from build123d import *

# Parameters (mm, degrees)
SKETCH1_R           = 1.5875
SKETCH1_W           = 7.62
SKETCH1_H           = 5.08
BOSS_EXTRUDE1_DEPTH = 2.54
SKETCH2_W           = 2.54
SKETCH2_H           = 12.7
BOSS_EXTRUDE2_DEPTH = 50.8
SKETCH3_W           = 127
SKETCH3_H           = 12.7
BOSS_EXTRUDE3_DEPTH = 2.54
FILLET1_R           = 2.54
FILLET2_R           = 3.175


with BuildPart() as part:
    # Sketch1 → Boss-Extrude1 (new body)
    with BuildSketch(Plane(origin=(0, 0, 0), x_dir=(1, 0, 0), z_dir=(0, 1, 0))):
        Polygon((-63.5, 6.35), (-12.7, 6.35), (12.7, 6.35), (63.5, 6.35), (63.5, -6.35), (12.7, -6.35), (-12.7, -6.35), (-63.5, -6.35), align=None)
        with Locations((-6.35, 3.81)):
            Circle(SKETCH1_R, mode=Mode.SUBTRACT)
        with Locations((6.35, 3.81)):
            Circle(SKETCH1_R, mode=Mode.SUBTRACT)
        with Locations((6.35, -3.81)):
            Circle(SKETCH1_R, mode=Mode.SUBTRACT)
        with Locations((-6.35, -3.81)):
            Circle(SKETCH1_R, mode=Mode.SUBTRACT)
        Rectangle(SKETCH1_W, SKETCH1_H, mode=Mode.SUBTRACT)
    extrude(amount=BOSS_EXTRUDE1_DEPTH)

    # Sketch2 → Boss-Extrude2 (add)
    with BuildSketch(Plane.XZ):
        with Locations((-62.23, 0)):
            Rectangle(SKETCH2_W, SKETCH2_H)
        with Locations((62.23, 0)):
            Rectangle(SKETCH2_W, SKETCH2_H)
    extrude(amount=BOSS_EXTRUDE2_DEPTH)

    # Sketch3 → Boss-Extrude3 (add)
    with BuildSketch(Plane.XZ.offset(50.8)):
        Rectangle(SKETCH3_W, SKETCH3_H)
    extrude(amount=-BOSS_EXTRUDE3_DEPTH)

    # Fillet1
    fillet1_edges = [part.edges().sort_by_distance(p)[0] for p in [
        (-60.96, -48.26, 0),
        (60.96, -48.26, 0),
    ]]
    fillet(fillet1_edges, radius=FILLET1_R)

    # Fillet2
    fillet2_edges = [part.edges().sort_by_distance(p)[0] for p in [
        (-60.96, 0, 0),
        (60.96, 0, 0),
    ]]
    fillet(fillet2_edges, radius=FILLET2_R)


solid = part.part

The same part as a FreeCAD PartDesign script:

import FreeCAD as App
import Part
import Sketcher
from FreeCAD import Vector
Q = App.Units.Quantity


def edges_at(feature, points):
    """Names of the edges that pass closest to the given points."""
    edges = feature.Shape.Edges
    near = lambda p: min(range(len(edges)), key=lambda i: edges[i].distToShape(Part.Vertex(*p))[0])
    return sorted({f"Edge{near(p) + 1}" for p in points})

doc = App.newDocument("Part")
params = doc.addObject("Spreadsheet::Sheet", "Params")
for row, (alias, value) in enumerate([
    ("sketch1_width", "5 in"),
    ("sketch1_diameter", "0.125 in"),
    ("sketch1_width2", "0.3 in"),
    ("sketch1_height", "0.5 in"),
    ("sketch1_height2", "0.2 in"),
    ("pad1_length", "0.1 in"),
    ("sketch2_width", "0.1 in"),
    ("sketch2_height", "0.5 in"),
    ("pad2_length", "2 in"),
    ("sketch3_width", "5 in"),
    ("sketch3_height", "0.5 in"),
    ("pad3_length", "0.1 in"),
    ("fillet_radius", "0.1 in"),
    ("fillet2_radius", "0.125 in"),
], start=1):
    params.set(f"A{row}", alias)
    params.set(f"B{row}", "=" + value)
    params.setAlias(f"B{row}", alias)

body = doc.addObject("PartDesign::Body", "Body")

# Sketch on XZ plane
sketch1 = body.newObject("Sketcher::SketchObject", "Sketch")
sketch1.AttachmentSupport = (doc.getObject("XZ_Plane"), [""])
sketch1.MapMode = "FlatFace"
sketch1.addGeometry(Part.LineSegment(Vector(63.5, -6.3, 0), Vector(-63.5, -6.3, 0)), False)
sketch1.addGeometry(Part.LineSegment(Vector(-63.5, -6.3, 0), Vector(-63.5, 6.3, 0)), False)
sketch1.addGeometry(Part.LineSegment(Vector(-63.5, 6.3, 0), Vector(63.5, 6.3, 0)), False)
sketch1.addGeometry(Part.LineSegment(Vector(63.5, 6.3, 0), Vector(63.5, -6.3, 0)), False)
sketch1.addGeometry(Part.Circle(Vector(6.3, 3.8, 0), Vector(0, 0, 1), 1.6), False)
sketch1.addGeometry(Part.Circle(Vector(-6.3, 3.8, 0), Vector(0, 0, 1), 1.6), False)
sketch1.addGeometry(Part.Circle(Vector(6.3, -3.8, 0), Vector(0, 0, 1), 1.6), False)
sketch1.addGeometry(Part.LineSegment(Vector(-3.8, 2.5, 0), Vector(-3.8, -2.5, 0)), False)
sketch1.addGeometry(Part.LineSegment(Vector(-3.8, -2.5, 0), Vector(3.8, -2.5, 0)), False)
sketch1.addGeometry(Part.LineSegment(Vector(3.8, -2.5, 0), Vector(3.8, 2.5, 0)), False)
sketch1.addGeometry(Part.LineSegment(Vector(3.8, 2.5, 0), Vector(-3.8, 2.5, 0)), False)
sketch1.addGeometry(Part.Circle(Vector(-6.3, -3.8, 0), Vector(0, 0, 1), 1.6), False)
sketch1.addConstraint(Sketcher.Constraint("Coincident", 0, 2, 1, 1))
sketch1.addConstraint(Sketcher.Constraint("Coincident", 1, 2, 2, 1))
sketch1.addConstraint(Sketcher.Constraint("Coincident", 2, 2, 3, 1))
sketch1.addConstraint(Sketcher.Constraint("Coincident", 3, 2, 0, 1))
sketch1.addConstraint(Sketcher.Constraint("Coincident", 7, 2, 8, 1))
sketch1.addConstraint(Sketcher.Constraint("Coincident", 8, 2, 9, 1))
sketch1.addConstraint(Sketcher.Constraint("Coincident", 9, 2, 10, 1))
sketch1.addConstraint(Sketcher.Constraint("Coincident", 10, 2, 7, 1))
sketch1.addConstraint(Sketcher.Constraint("Horizontal", 0))
sketch1.addConstraint(Sketcher.Constraint("Vertical", 1))
sketch1.addConstraint(Sketcher.Constraint("Horizontal", 2))
sketch1.addConstraint(Sketcher.Constraint("Vertical", 3))
sketch1.addConstraint(Sketcher.Constraint("Vertical", 7))
sketch1.addConstraint(Sketcher.Constraint("Horizontal", 8))
sketch1.addConstraint(Sketcher.Constraint("Vertical", 9))
sketch1.addConstraint(Sketcher.Constraint("Horizontal", 10))
sketch1.addConstraint(Sketcher.Constraint("Equal", 4, 5))
sketch1.addConstraint(Sketcher.Constraint("Equal", 5, 6))
sketch1.addConstraint(Sketcher.Constraint("Equal", 6, 11))
sketch1.addConstraint(Sketcher.Constraint("Symmetric", 5, 3, 6, 3, -1, 1))
sketch1.addConstraint(Sketcher.Constraint("Symmetric", 4, 3, 11, 3, -1, 1))
sketch1.addConstraint(Sketcher.Constraint("Symmetric", 0, 2, 2, 2, -1, 1))
sketch1.addConstraint(Sketcher.Constraint("Symmetric", 7, 2, 9, 2, -1, 1))
sketch1.addConstraint(Sketcher.Constraint("Symmetric", 4, 3, 5, 3, -2))
sketch1.addConstraint(Sketcher.Constraint("DistanceX", 0, 2, 0, 1, Q("5 in")))
sketch1.addConstraint(Sketcher.Constraint("Diameter", 4, Q("0.125 in")))
sketch1.addConstraint(Sketcher.Constraint("DistanceX", 8, 1, 8, 2, Q("0.3 in")))
sketch1.addConstraint(Sketcher.Constraint("DistanceY", 1, 1, 1, 2, Q("0.5 in")))
sketch1.addConstraint(Sketcher.Constraint("DistanceY", 7, 2, 7, 1, Q("0.2 in")))
sketch1.addConstraint(Sketcher.Constraint("DistanceX", 5, 3, 4, 3, Q("0.5 in")))
sketch1.addConstraint(Sketcher.Constraint("DistanceY", 6, 3, 4, 3, Q("0.3 in")))
sketch1.setExpression("Constraints[24]", "Params.sketch1_width")
sketch1.setExpression("Constraints[25]", "Params.sketch1_diameter")
sketch1.setExpression("Constraints[26]", "Params.sketch1_width2")
sketch1.setExpression("Constraints[27]", "Params.sketch1_height")
sketch1.setExpression("Constraints[28]", "Params.sketch1_height2")
pad1 = body.newObject("PartDesign::Pad", "Pad")
pad1.Profile = sketch1
pad1.setExpression("Length", "Params.pad1_length")
pad1.Reversed = True

# Sketch on XZ plane
sketch2 = body.newObject("Sketcher::SketchObject", "Sketch001")
sketch2.AttachmentSupport = (doc.getObject("XZ_Plane"), [""])
sketch2.MapMode = "FlatFace"
sketch2.addGeometry(Part.LineSegment(Vector(-63.5, 6.3, 0), Vector(-63.5, -6.3, 0)), False)
sketch2.addGeometry(Part.LineSegment(Vector(-63.5, -6.3, 0), Vector(-61, -6.3, 0)), False)
sketch2.addGeometry(Part.LineSegment(Vector(-61, -6.3, 0), Vector(-61, 6.3, 0)), False)
sketch2.addGeometry(Part.LineSegment(Vector(-61, 6.3, 0), Vector(-63.5, 6.3, 0)), False)
sketch2.addGeometry(Part.LineSegment(Vector(61, 6.3, 0), Vector(61, -6.3, 0)), False)
sketch2.addGeometry(Part.LineSegment(Vector(61, -6.3, 0), Vector(63.5, -6.3, 0)), False)
sketch2.addGeometry(Part.LineSegment(Vector(63.5, -6.3, 0), Vector(63.5, 6.3, 0)), False)
sketch2.addGeometry(Part.LineSegment(Vector(63.5, 6.3, 0), Vector(61, 6.3, 0)), False)
sketch2.addConstraint(Sketcher.Constraint("Coincident", 0, 2, 1, 1))
sketch2.addConstraint(Sketcher.Constraint("Coincident", 1, 2, 2, 1))
sketch2.addConstraint(Sketcher.Constraint("Coincident", 2, 2, 3, 1))
sketch2.addConstraint(Sketcher.Constraint("Coincident", 3, 2, 0, 1))
sketch2.addConstraint(Sketcher.Constraint("Coincident", 4, 2, 5, 1))
sketch2.addConstraint(Sketcher.Constraint("Coincident", 5, 2, 6, 1))
sketch2.addConstraint(Sketcher.Constraint("Coincident", 6, 2, 7, 1))
sketch2.addConstraint(Sketcher.Constraint("Coincident", 7, 2, 4, 1))
sketch2.addConstraint(Sketcher.Constraint("Vertical", 0))
sketch2.addConstraint(Sketcher.Constraint("Horizontal", 1))
sketch2.addConstraint(Sketcher.Constraint("Vertical", 2))
sketch2.addConstraint(Sketcher.Constraint("Horizontal", 3))
sketch2.addConstraint(Sketcher.Constraint("Vertical", 4))
sketch2.addConstraint(Sketcher.Constraint("Horizontal", 5))
sketch2.addConstraint(Sketcher.Constraint("Vertical", 6))
sketch2.addConstraint(Sketcher.Constraint("Horizontal", 7))
sketch2.addConstraint(Sketcher.Constraint("Symmetric", 2, 2, 4, 2, -1, 1))
sketch2.addConstraint(Sketcher.Constraint("Symmetric", 0, 2, 6, 2, -1, 1))
sketch2.addConstraint(Sketcher.Constraint("Horizontal", 1, 2, 4, 2))
sketch2.addConstraint(Sketcher.Constraint("DistanceX", 1, 1, 1, 2, Q("0.1 in")))
sketch2.addConstraint(Sketcher.Constraint("DistanceY", 0, 2, 0, 1, Q("0.5 in")))
sketch2.addConstraint(Sketcher.Constraint("DistanceX", 0, 2, 5, 2, Q("5 in")))
sketch2.setExpression("Constraints[19]", "Params.sketch2_width")
sketch2.setExpression("Constraints[20]", "Params.sketch2_height")
pad2 = body.newObject("PartDesign::Pad", "Pad001")
pad2.Profile = sketch2
pad2.setExpression("Length", "Params.pad2_length")

# Sketch on XZ plane
sketch3 = body.newObject("Sketcher::SketchObject", "Sketch002")
sketch3.AttachmentSupport = (doc.getObject("XZ_Plane"), [""])
sketch3.MapMode = "FlatFace"
sketch3.AttachmentOffset = App.Placement(Vector(0, 0, 2 * 25.4), App.Rotation())
sketch3.addGeometry(Part.LineSegment(Vector(-64, 6, 0), Vector(-64, -6, 0)), False)
sketch3.addGeometry(Part.LineSegment(Vector(-64, -6, 0), Vector(64, -6, 0)), False)
sketch3.addGeometry(Part.LineSegment(Vector(64, -6, 0), Vector(64, 6, 0)), False)
sketch3.addGeometry(Part.LineSegment(Vector(64, 6, 0), Vector(-64, 6, 0)), False)
sketch3.addConstraint(Sketcher.Constraint("Coincident", 0, 2, 1, 1))
sketch3.addConstraint(Sketcher.Constraint("Coincident", 1, 2, 2, 1))
sketch3.addConstraint(Sketcher.Constraint("Coincident", 2, 2, 3, 1))
sketch3.addConstraint(Sketcher.Constraint("Coincident", 3, 2, 0, 1))
sketch3.addConstraint(Sketcher.Constraint("Vertical", 0))
sketch3.addConstraint(Sketcher.Constraint("Horizontal", 1))
sketch3.addConstraint(Sketcher.Constraint("Vertical", 2))
sketch3.addConstraint(Sketcher.Constraint("Horizontal", 3))
sketch3.addConstraint(Sketcher.Constraint("Symmetric", 0, 2, 2, 2, -1, 1))
sketch3.addConstraint(Sketcher.Constraint("DistanceX", 1, 1, 1, 2, Q("5 in")))
sketch3.addConstraint(Sketcher.Constraint("DistanceY", 0, 2, 0, 1, Q("0.5 in")))
sketch3.setExpression("Constraints[9]", "Params.sketch3_width")
sketch3.setExpression("Constraints[10]", "Params.sketch3_height")
pad3 = body.newObject("PartDesign::Pad", "Pad002")
pad3.Profile = sketch3
pad3.setExpression("Length", "Params.pad3_length")
pad3.Reversed = True
doc.recompute()

fillet = body.newObject("PartDesign::Fillet", "Fillet")
fillet.Base = (pad3, edges_at(pad3, [(-60.96, -48.26, 0), (60.96, -48.26, 0)]))
fillet.setExpression("Radius", "Params.fillet_radius")
doc.recompute()

fillet2 = body.newObject("PartDesign::Fillet", "Fillet001")
fillet2.Base = (fillet, edges_at(fillet, [(-60.96, 0, 0), (60.96, 0, 0)]))
fillet2.setExpression("Radius", "Params.fillet2_radius")

doc.recompute()
